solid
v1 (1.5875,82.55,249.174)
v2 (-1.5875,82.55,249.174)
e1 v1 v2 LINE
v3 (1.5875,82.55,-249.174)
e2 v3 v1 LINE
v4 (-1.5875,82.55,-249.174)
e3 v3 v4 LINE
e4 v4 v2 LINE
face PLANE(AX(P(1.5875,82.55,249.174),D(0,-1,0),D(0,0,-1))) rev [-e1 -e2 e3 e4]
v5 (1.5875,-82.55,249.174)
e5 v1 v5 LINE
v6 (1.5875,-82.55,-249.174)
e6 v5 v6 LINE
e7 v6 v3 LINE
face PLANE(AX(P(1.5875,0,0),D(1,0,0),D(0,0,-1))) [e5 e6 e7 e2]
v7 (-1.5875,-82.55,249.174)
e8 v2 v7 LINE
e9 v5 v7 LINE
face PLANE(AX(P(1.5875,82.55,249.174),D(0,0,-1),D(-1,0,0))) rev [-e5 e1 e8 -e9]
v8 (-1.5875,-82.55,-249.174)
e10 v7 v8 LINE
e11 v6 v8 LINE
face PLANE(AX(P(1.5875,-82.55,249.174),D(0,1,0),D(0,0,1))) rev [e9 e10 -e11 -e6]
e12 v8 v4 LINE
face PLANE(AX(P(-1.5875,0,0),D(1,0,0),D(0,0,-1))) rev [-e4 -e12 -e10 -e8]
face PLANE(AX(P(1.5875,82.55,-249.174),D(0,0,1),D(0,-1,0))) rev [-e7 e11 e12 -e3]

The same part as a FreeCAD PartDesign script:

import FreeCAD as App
import Part
import Sketcher
from FreeCAD import Vector
Q = App.Units.Quantity


def add_polygon(sketch, points):
    """Adds a closed chain of lines whose ends are joined by coincident constraints."""
    first, n = sketch.GeometryCount, len(points)
    for a, b in zip(points, points[1:] + points[:1]):
        sketch.addGeometry(Part.LineSegment(App.Vector(*a, 0), App.Vector(*b, 0)), False)
    for i in range(n):
        sketch.addConstraint(Sketcher.Constraint("Coincident", first + i, 2, first + (i + 1) % n, 1))

doc = App.newDocument("Part")
params = doc.addObject("Spreadsheet::Sheet", "Params")
for row, (alias, value) in enumerate([
    ("sketch1_width", "6.5 in"),
    ("sketch1_height", "19.62 in"),
    ("pad1_length", "0.125 in"),
], start=1):
    params.set(f"A{row}", alias)
    params.set(f"B{row}", "=" + value)
    params.setAlias(f"B{row}", alias)

body = doc.addObject("PartDesign::Body", "Body")

# Sketch on YZ plane
sketch1 = body.newObject("Sketcher::SketchObject", "Sketch")
sketch1.AttachmentSupport = (doc.getObject("YZ_Plane"), [""])
sketch1.MapMode = "FlatFace"
add_polygon(sketch1, [(83, 249), (-83, 249), (-83, -249), (83, -249)])  # lines 0-3
sketch1.addConstraint([
    Sketcher.Constraint("Horizontal", 0),
    Sketcher.Constraint("Vertical", 1),
    Sketcher.Constraint("Horizontal", 2),
    Sketcher.Constraint("Vertical", 3),
    Sketcher.Constraint("Symmetric", 0, 2, 2, 2, -1, 1),
    Sketcher.Constraint("DistanceX", 0, 2, 0, 1, Q("6.5 in")),
    Sketcher.Constraint("DistanceY", 1, 2, 1, 1, Q("19.62 in")),
])
sketch1.setExpression("Constraints[9]", "Params.sketch1_width")
sketch1.setExpression("Constraints[10]", "Params.sketch1_height")
pad1 = body.newObject("PartDesign::Pad", "Pad")
pad1.Profile = sketch1
pad1.setExpression("Length", "Params.pad1_length")
pad1.Midplane = True

doc.recompute()
